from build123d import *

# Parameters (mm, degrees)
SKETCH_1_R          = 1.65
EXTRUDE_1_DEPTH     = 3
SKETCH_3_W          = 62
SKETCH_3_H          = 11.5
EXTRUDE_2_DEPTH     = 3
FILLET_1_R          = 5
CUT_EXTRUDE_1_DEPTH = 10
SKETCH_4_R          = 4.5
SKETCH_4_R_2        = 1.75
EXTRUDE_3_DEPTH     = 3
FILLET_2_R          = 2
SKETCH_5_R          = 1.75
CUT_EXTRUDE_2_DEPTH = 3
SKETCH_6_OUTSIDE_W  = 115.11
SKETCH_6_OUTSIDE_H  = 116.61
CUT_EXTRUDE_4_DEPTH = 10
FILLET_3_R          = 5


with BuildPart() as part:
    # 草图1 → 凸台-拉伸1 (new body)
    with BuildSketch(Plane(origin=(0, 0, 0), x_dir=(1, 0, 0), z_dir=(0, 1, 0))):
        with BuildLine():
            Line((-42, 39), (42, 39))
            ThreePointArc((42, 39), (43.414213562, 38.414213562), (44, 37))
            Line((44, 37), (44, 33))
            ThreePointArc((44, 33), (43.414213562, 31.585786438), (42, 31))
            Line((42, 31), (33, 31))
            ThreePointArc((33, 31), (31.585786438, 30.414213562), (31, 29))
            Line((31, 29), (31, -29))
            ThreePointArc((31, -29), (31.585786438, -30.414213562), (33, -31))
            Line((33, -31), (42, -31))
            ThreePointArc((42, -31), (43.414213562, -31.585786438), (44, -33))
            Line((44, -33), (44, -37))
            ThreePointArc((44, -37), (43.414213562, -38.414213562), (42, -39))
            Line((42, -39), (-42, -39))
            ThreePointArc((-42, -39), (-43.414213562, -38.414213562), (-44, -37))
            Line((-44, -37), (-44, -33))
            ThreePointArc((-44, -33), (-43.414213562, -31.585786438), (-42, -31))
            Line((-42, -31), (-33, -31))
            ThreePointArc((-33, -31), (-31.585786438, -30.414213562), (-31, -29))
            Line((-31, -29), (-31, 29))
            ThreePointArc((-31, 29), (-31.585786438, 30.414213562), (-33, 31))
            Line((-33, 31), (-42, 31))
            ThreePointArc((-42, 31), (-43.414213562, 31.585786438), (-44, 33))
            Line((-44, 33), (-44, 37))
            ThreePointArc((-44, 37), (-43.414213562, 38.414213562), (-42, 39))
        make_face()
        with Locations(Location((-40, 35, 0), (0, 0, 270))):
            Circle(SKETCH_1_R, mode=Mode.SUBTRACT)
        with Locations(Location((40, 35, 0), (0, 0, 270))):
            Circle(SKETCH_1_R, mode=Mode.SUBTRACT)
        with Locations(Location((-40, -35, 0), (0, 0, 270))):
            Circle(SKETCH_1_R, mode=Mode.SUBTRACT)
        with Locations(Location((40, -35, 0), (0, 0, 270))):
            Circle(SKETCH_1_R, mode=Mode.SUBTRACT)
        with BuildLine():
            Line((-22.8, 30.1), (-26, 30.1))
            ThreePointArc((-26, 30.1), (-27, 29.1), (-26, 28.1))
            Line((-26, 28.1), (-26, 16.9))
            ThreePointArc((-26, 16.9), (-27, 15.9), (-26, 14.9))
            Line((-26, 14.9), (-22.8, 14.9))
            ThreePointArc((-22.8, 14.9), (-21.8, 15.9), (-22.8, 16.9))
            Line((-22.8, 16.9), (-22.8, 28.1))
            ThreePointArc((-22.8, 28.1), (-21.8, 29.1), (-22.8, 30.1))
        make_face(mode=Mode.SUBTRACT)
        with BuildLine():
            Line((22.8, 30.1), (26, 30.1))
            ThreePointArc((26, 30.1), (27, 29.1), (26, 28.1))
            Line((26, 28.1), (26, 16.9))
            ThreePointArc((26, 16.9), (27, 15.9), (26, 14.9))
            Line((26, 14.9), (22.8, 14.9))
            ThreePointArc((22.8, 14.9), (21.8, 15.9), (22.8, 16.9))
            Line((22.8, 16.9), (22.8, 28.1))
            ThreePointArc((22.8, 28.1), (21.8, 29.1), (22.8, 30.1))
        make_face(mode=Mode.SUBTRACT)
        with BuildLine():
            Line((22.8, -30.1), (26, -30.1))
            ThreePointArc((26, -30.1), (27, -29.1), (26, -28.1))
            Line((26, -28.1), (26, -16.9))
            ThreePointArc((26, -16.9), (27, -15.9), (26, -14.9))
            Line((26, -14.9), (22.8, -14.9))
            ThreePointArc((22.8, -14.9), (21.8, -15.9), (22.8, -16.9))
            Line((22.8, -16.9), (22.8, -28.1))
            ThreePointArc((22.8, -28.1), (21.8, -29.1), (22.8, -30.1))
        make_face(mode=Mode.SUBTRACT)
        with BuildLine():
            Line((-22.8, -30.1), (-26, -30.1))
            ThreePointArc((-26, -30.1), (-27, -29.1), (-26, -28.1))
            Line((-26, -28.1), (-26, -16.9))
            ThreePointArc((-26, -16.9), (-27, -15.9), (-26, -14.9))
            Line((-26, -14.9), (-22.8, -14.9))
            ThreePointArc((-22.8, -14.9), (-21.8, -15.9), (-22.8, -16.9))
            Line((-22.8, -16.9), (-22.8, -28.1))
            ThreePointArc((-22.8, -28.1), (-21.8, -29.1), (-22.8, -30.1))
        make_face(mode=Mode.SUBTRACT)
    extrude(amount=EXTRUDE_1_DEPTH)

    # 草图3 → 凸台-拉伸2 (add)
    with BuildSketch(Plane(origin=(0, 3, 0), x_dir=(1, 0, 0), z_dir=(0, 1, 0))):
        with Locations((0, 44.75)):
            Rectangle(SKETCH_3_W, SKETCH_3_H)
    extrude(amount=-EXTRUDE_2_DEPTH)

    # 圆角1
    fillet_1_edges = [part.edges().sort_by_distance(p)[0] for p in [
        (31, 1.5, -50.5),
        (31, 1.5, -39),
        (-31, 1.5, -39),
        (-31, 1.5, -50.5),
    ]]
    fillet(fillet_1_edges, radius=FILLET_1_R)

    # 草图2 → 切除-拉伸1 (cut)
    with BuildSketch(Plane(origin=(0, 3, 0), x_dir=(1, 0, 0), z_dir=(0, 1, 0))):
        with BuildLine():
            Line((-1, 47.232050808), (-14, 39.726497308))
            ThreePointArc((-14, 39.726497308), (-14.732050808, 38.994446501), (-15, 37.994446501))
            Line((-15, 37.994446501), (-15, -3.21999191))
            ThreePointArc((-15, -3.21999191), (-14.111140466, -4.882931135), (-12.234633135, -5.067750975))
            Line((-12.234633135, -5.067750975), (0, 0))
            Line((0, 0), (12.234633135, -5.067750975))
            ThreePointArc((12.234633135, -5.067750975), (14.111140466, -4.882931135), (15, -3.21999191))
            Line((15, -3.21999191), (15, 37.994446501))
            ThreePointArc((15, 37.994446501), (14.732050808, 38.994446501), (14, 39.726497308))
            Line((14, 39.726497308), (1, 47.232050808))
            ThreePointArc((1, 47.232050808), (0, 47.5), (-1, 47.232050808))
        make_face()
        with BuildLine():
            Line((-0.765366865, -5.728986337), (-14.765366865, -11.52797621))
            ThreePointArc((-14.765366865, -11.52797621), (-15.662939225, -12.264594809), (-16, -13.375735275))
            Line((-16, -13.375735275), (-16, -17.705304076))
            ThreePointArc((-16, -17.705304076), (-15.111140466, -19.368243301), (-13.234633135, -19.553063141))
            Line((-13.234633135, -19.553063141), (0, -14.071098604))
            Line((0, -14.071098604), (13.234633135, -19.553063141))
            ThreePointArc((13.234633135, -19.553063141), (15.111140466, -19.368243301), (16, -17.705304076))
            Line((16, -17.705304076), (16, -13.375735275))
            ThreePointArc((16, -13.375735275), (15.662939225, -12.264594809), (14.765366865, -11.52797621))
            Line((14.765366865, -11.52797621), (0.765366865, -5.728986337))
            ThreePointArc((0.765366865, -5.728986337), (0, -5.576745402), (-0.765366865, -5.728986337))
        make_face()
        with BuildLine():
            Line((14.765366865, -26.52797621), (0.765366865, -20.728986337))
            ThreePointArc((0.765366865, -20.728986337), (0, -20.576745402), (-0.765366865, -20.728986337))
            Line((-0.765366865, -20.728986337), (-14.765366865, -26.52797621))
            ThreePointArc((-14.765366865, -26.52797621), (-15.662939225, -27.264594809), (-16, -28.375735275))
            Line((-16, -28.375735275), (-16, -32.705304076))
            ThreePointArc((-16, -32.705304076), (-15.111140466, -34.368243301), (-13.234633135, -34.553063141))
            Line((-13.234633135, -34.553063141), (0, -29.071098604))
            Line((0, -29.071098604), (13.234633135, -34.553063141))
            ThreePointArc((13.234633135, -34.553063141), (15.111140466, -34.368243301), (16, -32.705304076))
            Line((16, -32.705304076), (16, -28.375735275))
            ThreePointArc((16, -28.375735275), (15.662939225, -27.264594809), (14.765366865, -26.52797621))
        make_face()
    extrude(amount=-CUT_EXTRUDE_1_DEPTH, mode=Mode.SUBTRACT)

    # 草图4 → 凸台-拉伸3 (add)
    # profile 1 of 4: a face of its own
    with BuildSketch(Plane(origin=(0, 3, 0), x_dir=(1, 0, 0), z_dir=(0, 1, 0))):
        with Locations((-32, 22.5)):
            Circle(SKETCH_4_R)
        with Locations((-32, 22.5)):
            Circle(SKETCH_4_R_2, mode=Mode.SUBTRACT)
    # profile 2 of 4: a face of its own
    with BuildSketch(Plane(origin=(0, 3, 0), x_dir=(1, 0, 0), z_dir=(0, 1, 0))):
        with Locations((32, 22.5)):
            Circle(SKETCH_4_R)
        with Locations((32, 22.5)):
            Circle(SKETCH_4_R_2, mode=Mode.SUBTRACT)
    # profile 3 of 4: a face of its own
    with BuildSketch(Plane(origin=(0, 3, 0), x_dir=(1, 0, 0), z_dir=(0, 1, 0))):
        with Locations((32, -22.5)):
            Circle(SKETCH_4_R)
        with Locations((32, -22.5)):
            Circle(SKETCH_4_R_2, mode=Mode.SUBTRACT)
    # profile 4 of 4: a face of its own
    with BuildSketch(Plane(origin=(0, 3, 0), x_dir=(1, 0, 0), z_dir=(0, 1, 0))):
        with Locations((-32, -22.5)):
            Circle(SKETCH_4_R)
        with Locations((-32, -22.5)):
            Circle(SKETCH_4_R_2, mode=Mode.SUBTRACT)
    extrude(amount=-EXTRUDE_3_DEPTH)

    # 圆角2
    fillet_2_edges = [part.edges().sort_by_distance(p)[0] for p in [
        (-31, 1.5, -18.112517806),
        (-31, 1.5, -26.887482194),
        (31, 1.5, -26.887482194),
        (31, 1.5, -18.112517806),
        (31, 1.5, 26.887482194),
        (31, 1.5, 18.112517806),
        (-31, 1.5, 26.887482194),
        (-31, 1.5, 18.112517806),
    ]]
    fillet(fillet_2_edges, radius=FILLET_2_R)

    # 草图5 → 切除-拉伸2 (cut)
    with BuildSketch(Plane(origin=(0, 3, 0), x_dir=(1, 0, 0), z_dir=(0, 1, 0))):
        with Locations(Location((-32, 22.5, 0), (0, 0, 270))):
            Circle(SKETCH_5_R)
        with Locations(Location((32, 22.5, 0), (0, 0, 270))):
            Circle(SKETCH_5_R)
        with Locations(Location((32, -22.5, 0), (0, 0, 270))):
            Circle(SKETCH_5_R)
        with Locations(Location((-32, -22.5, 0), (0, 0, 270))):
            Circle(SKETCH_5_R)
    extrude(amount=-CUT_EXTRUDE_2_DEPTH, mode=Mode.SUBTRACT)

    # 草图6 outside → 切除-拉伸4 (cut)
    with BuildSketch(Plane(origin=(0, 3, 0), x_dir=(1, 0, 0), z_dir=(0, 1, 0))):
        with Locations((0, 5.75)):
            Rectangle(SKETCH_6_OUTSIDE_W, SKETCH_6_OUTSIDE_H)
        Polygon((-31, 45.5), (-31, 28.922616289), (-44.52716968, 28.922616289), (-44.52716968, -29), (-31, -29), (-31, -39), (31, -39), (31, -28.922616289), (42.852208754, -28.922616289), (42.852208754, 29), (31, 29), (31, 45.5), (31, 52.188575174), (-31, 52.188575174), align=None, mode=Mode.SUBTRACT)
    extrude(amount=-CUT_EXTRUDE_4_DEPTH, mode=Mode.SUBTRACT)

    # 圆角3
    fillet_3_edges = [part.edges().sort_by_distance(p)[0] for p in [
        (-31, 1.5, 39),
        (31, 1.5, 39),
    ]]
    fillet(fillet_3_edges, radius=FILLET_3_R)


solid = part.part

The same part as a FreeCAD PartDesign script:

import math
import FreeCAD as App
import Part
import Sketcher

V = App.Vector
Q = App.Units.Quantity


def edges_at(feature, points):
    """Names of the edges that pass closest to the given points."""
    edges = feature.Shape.Edges
    near = lambda p: min(range(len(edges)), key=lambda i: edges[i].distToShape(Part.Vertex(*p))[0])
    return sorted({f"Edge{near(p) + 1}" for p in points})

doc = App.newDocument("Part")
body = doc.addObject("PartDesign::Body", "Body")

# Sketch on XZ plane
sketch1 = body.newObject("Sketcher::SketchObject", "Sketch")
sketch1.AttachmentSupport = (doc.getObject("XZ_Plane"), [""])
sketch1.MapMode = "FlatFace"
sketch1.addGeometry([
    Part.LineSegment(V(42, -39, 0), V(-42, -39, 0)),  # 0
    Part.ArcOfCircle(Part.Circle(V(-42, -37, 0), V(0, 0, 1), 2), math.radians(-180), math.radians(-90)),  # 1
    Part.LineSegment(V(-44, -37, 0), V(-44, -33, 0)),  # 2
    Part.ArcOfCircle(Part.Circle(V(-42, -33, 0), V(0, 0, 1), 2), math.radians(90), math.radians(180)),  # 3
    Part.LineSegment(V(-42, -31, 0), V(-33, -31, 0)),  # 4
    Part.ArcOfCircle(Part.Circle(V(-33, -29, 0), V(0, 0, 1), 2), math.radians(-90), math.radians(0)),  # 5
    Part.LineSegment(V(-31, -29, 0), V(-31, 29, 0)),  # 6
    Part.ArcOfCircle(Part.Circle(V(-33, 29, 0), V(0, 0, 1), 2), math.radians(0), math.radians(90)),  # 7
    Part.LineSegment(V(-33, 31, 0), V(-42, 31, 0)),  # 8
    Part.ArcOfCircle(Part.Circle(V(-42, 33, 0), V(0, 0, 1), 2), math.radians(-180), math.radians(-90)),  # 9
    Part.LineSegment(V(-44, 33, 0), V(-44, 37, 0)),  # 10
    Part.ArcOfCircle(Part.Circle(V(-42, 37, 0), V(0, 0, 1), 2), math.radians(90), math.radians(180)),  # 11
    Part.LineSegment(V(-42, 39, 0), V(42, 39, 0)),  # 12
    Part.ArcOfCircle(Part.Circle(V(42, 37, 0), V(0, 0, 1), 2), math.radians(0), math.radians(90)),  # 13
    Part.LineSegment(V(44, 37, 0), V(44, 33, 0)),  # 14
    Part.ArcOfCircle(Part.Circle(V(42, 33, 0), V(0, 0, 1), 2), math.radians(-90), math.radians(0)),  # 15
    Part.LineSegment(V(42, 31, 0), V(33, 31, 0)),  # 16
    Part.ArcOfCircle(Part.Circle(V(33, 29, 0), V(0, 0, 1), 2), math.radians(90), math.radians(180)),  # 17
    Part.LineSegment(V(31, 29, 0), V(31, -29, 0)),  # 18
    Part.ArcOfCircle(Part.Circle(V(33, -29, 0), V(0, 0, 1), 2), math.radians(-180), math.radians(-90)),  # 19
    Part.LineSegment(V(33, -31, 0), V(42, -31, 0)),  # 20
    Part.ArcOfCircle(Part.Circle(V(42, -33, 0), V(0, 0, 1), 2), math.radians(0), math.radians(90)),  # 21
    Part.LineSegment(V(44, -33, 0), V(44, -37, 0)),  # 22
    Part.ArcOfCircle(Part.Circle(V(42, -37, 0), V(0, 0, 1), 2), math.radians(-90), math.radians(0)),  # 23
    Part.Circle(V(40, 35, 0), V(0, 0, 1), 1.65),  # 24
    Part.ArcOfCircle(Part.Circle(V(22.8, 29.1, 0), V(0, 0, 1), 1), math.radians(90), math.radians(270)),  # 25
    Part.LineSegment(V(22.8, 28.1, 0), V(22.8, 16.9, 0)),  # 26
    Part.ArcOfCircle(Part.Circle(V(22.8, 15.9, 0), V(0, 0, 1), 1), math.radians(90), math.radians(270)),  # 27
    Part.LineSegment(V(22.8, 14.9, 0), V(26, 14.9, 0)),  # 28
    Part.ArcOfCircle(Part.Circle(V(26, 15.9, 0), V(0, 0, 1), 1), math.radians(-90), math.radians(90)),  # 29
    Part.LineSegment(V(26, 16.9, 0), V(26, 28.1, 0)),  # 30
    Part.ArcOfCircle(Part.Circle(V(26, 29.1, 0), V(0, 0, 1), 1), math.radians(-90), math.radians(90)),  # 31
    Part.LineSegment(V(26, 30.1, 0), V(22.8, 30.1, 0)),  # 32
    Part.Circle(V(-40, 35, 0), V(0, 0, 1), 1.65),  # 33
    Part.LineSegment(V(-22.8, 30.1, 0), V(-26, 30.1, 0)),  # 34
    Part.ArcOfCircle(Part.Circle(V(-26, 29.1, 0), V(0, 0, 1), 1), math.radians(90), math.radians(270)),  # 35
    Part.LineSegment(V(-26, 28.1, 0), V(-26, 16.9, 0)),  # 36
    Part.ArcOfCircle(Part.Circle(V(-26, 15.9, 0), V(0, 0, 1), 1), math.radians(90), math.radians(270)),  # 37
    Part.LineSegment(V(-26, 14.9, 0), V(-22.8, 14.9, 0)),  # 38
    Part.ArcOfCircle(Part.Circle(V(-22.8, 15.9, 0), V(0, 0, 1), 1), math.radians(-90), math.radians(90)),  # 39
    Part.LineSegment(V(-22.8, 16.9, 0), V(-22.8, 28.1, 0)),  # 40
    Part.ArcOfCircle(Part.Circle(V(-22.8, 29.1, 0), V(0, 0, 1), 1), math.radians(-90), math.radians(90)),  # 41
    Part.LineSegment(V(22.8, -30.1, 0), V(26, -30.1, 0)),  # 42
    Part.ArcOfCircle(Part.Circle(V(26, -29.1, 0), V(0, 0, 1), 1), math.radians(-90), math.radians(90)),  # 43
    Part.LineSegment(V(26, -28.1, 0), V(26, -16.9, 0)),  # 44
    Part.ArcOfCircle(Part.Circle(V(26, -15.9, 0), V(0, 0, 1), 1), math.radians(-90), math.radians(90)),  # 45
    Part.LineSegment(V(26, -14.9, 0), V(22.8, -14.9, 0)),  # 46
    Part.ArcOfCircle(Part.Circle(V(22.8, -15.9, 0), V(0, 0, 1), 1), math.radians(90), math.radians(270)),  # 47
    Part.LineSegment(V(22.8, -16.9, 0), V(22.8, -28.1, 0)),  # 48
    Part.ArcOfCircle(Part.Circle(V(22.8, -29.1, 0), V(0, 0, 1), 1), math.radians(90), math.radians(270)),  # 49
    Part.Circle(V(40, -35, 0), V(0, 0, 1), 1.65),  # 50
    Part.ArcOfCircle(Part.Circle(V(-22.8, -29.1, 0), V(0, 0, 1), 1), math.radians(-90), math.radians(90)),  # 51
    Part.LineSegment(V(-22.8, -28.1, 0), V(-22.8, -16.9, 0)),  # 52
    Part.ArcOfCircle(Part.Circle(V(-22.8, -15.9, 0), V(0, 0, 1), 1), math.radians(-90), math.radians(90)),  # 53
    Part.LineSegment(V(-22.8, -14.9, 0), V(-26, -14.9, 0)),  # 54
    Part.ArcOfCircle(Part.Circle(V(-26, -15.9, 0), V(0, 0, 1), 1), math.radians(90), math.radians(270)),  # 55
    Part.LineSegment(V(-26, -16.9, 0), V(-26, -28.1, 0)),  # 56
    Part.ArcOfCircle(Part.Circle(V(-26, -29.1, 0), V(0, 0, 1), 1), math.radians(90), math.radians(270)),  # 57
    Part.LineSegment(V(-26, -30.1, 0), V(-22.8, -30.1, 0)),  # 58
    Part.Circle(V(-40, -35, 0), V(0, 0, 1), 1.65),  # 59
], False)
sketch1.addConstraint([
    Sketcher.Constraint("Tangent", 0, 2, 1, 2),
    Sketcher.Constraint("Tangent", 1, 1, 2, 1),
    Sketcher.Constraint("Tangent", 2, 2, 3, 2),
    Sketcher.Constraint("Tangent", 3, 1, 4, 1),
    Sketcher.Constraint("Tangent", 4, 2, 5, 1),
    Sketcher.Constraint("Tangent", 5, 2, 6, 1),
    Sketcher.Constraint("Tangent", 6, 2, 7, 1),
    Sketcher.Constraint("Tangent", 7, 2, 8, 1),
    Sketcher.Constraint("Tangent", 8, 2, 9, 2),
    Sketcher.Constraint("Tangent", 9, 1, 10, 1),
    Sketcher.Constraint("Tangent", 10, 2, 11, 2),
    Sketcher.Constraint("Tangent", 11, 1, 12, 1),
    Sketcher.Constraint("Tangent", 12, 2, 13, 2),
    Sketcher.Constraint("Tangent", 13, 1, 14, 1),
    Sketcher.Constraint("Tangent", 14, 2, 15, 2),
    Sketcher.Constraint("Tangent", 15, 1, 16, 1),
    Sketcher.Constraint("Tangent", 16, 2, 17, 1),
    Sketcher.Constraint("Tangent", 17, 2, 18, 1),
    Sketcher.Constraint("Tangent", 18, 2, 19, 1),
    Sketcher.Constraint("Tangent", 19, 2, 20, 1),
    Sketcher.Constraint("Tangent", 20, 2, 21, 2),
    Sketcher.Constraint("Tangent", 21, 1, 22, 1),
    Sketcher.Constraint("Tangent", 22, 2, 23, 2),
    Sketcher.Constraint("Tangent", 23, 1, 0, 1),
    Sketcher.Constraint("Coincident", 25, 2, 26, 1),
    Sketcher.Constraint("Coincident", 26, 2, 27, 1),
    Sketcher.Constraint("Tangent", 27, 2, 28, 1),
    Sketcher.Constraint("Tangent", 28, 2, 29, 1),
    Sketcher.Constraint("Coincident", 29, 2, 30, 1),
    Sketcher.Constraint("Coincident", 30, 2, 31, 1),
    Sketcher.Constraint("Tangent", 31, 2, 32, 1),
    Sketcher.Constraint("Tangent", 32, 2, 25, 1),
    Sketcher.Constraint("Tangent", 34, 2, 35, 1),
    Sketcher.Constraint("Coincident", 35, 2, 36, 1),
    Sketcher.Constraint("Coincident", 36, 2, 37, 1),
    Sketcher.Constraint("Tangent", 37, 2, 38, 1),
    Sketcher.Constraint("Tangent", 38, 2, 39, 1),
    Sketcher.Constraint("Coincident", 39, 2, 40, 1),
    Sketcher.Constraint("Coincident", 40, 2, 41, 1),
    Sketcher.Constraint("Tangent", 41, 2, 34, 1),
    Sketcher.Constraint("Tangent", 42, 2, 43, 1),
    Sketcher.Constraint("Coincident", 43, 2, 44, 1),
    Sketcher.Constraint("Coincident", 44, 2, 45, 1),
    Sketcher.Constraint("Tangent", 45, 2, 46, 1),
    Sketcher.Constraint("Tangent", 46, 2, 47, 1),
    Sketcher.Constraint("Coincident", 47, 2, 48, 1),
    Sketcher.Constraint("Coincident", 48, 2, 49, 1),
    Sketcher.Constraint("Tangent", 49, 2, 42, 1),
    Sketcher.Constraint("Coincident", 51, 2, 52, 1),
    Sketcher.Constraint("Coincident", 52, 2, 53, 1),
    Sketcher.Constraint("Tangent", 53, 2, 54, 1),
    Sketcher.Constraint("Tangent", 54, 2, 55, 1),
    Sketcher.Constraint("Coincident", 55, 2, 56, 1),
    Sketcher.Constraint("Coincident", 56, 2, 57, 1),
    Sketcher.Constraint("Tangent", 57, 2, 58, 1),
    Sketcher.Constraint("Tangent", 58, 2, 51, 1),
    Sketcher.Constraint("Horizontal", 0),
    Sketcher.Constraint("Vertical", 2),
    Sketcher.Constraint("Horizontal", 4),
    Sketcher.Constraint("Vertical", 6),
    Sketcher.Constraint("Horizontal", 8),
    Sketcher.Constraint("Vertical", 10),
    Sketcher.Constraint("Horizontal", 12),
    Sketcher.Constraint("Vertical", 14),
    Sketcher.Constraint("Horizontal", 16),
    Sketcher.Constraint("Vertical", 18),
    Sketcher.Constraint("Horizontal", 20),
    Sketcher.Constraint("Vertical", 22),
    Sketcher.Constraint("Vertical", 26),
    Sketcher.Constraint("Horizontal", 28),
    Sketcher.Constraint("Vertical", 30),
    Sketcher.Constraint("Horizontal", 32),
    Sketcher.Constraint("Horizontal", 34),
    Sketcher.Constraint("Vertical", 36),
    Sketcher.Constraint("Horizontal", 38),
    Sketcher.Constraint("Vertical", 40),
    Sketcher.Constraint("Horizontal", 42),
    Sketcher.Constraint("Vertical", 44),
    Sketcher.Constraint("Horizontal", 46),
    Sketcher.Constraint("Vertical", 48),
    Sketcher.Constraint("Vertical", 52),
    Sketcher.Constraint("Horizontal", 54),
    Sketcher.Constraint("Vertical", 56),
    Sketcher.Constraint("Horizontal", 58),
    Sketcher.Constraint("Equal", 1, 3),
    Sketcher.Constraint("Equal", 3, 5),
    Sketcher.Constraint("Equal", 5, 7),
    Sketcher.Constraint("Equal", 7, 9),
    Sketcher.Constraint("Equal", 9, 11),
    Sketcher.Constraint("Equal", 11, 13),
    Sketcher.Constraint("Equal", 13, 15),
    Sketcher.Constraint("Equal", 15, 17),
    Sketcher.Constraint("Equal", 17, 19),
    Sketcher.Constraint("Equal", 19, 21),
    Sketcher.Constraint("Equal", 21, 23),
    Sketcher.Constraint("Equal", 25, 27),
    Sketcher.Constraint("Equal", 27, 29),
    Sketcher.Constraint("Equal", 29, 31),
    Sketcher.Constraint("Equal", 24, 33),
    Sketcher.Constraint("Equal", 31, 35),
    Sketcher.Constraint("Equal", 35, 37),
    Sketcher.Constraint("Equal", 37, 39),
    Sketcher.Constraint("Equal", 39, 41),
    Sketcher.Constraint("Equal", 41, 43),
    Sketcher.Constraint("Equal", 43, 45),
    Sketcher.Constraint("Equal", 45, 47),
    Sketcher.Constraint("Equal", 47, 49),
    Sketcher.Constraint("Equal", 33, 50),
    Sketcher.Constraint("Equal", 49, 51),
    Sketcher.Constraint("Equal", 51, 53),
    Sketcher.Constraint("Equal", 53, 55),
    Sketcher.Constraint("Equal", 55, 57),
    Sketcher.Constraint("Equal", 50, 59),
    Sketcher.Constraint("Symmetric", 1, 3, 13, 3, -1, 1),
    Sketcher.Constraint("Symmetric", 5, 3, 17, 3, -1, 1),
    Sketcher.Constraint("Symmetric", 9, 3, 21, 3, -1, 1),
    Sketcher.Constraint("Symmetric", 35, 3, 43, 3, -1, 1),
    Sketcher.Constraint("Symmetric", 37, 3, 45, 3, -1, 1),
    Sketcher.Constraint("Symmetric", 33, 3, 50, 3, -1, 1),
    Sketcher.Constraint("Symmetric", 25, 3, 51, 3, -1, 1),
    Sketcher.Constraint("Symmetric", 27, 3, 53, 3, -1, 1),
    Sketcher.Constraint("Symmetric", 24, 3, 59, 3, -1, 1),
    Sketcher.Constraint("Symmetric", 9, 3, 15, 3, -2),
    Sketcher.Constraint("Symmetric", 24, 3, 33, 3, -2),
    Sketcher.Constraint("Symmetric", 31, 3, 35, 3, -2),
    Sketcher.Constraint("Symmetric", 29, 3, 37, 3, -2),
    Sketcher.Constraint("Vertical", 25, 3, 27, 3),
    Sketcher.Constraint("Vertical", 29, 3, 31, 3),
    Sketcher.Constraint("Vertical", 39, 3, 41, 3),
    Sketcher.Constraint("Vertical", 27, 3, 47, 3),
    Sketcher.Constraint("Vertical", 47, 3, 49, 3),
    Sketcher.Constraint("Vertical", 41, 3, 51, 3),
    Sketcher.Constraint("Vertical", 37, 3, 55, 3),
    Sketcher.Constraint("Vertical", 55, 3, 57, 3),
    Sketcher.Constraint("Vertical", 49, 3, 25, 2),
    Sketcher.Constraint("Vertical", 28, 2, 29, 2),
    Sketcher.Constraint("Vertical", 34, 2, 35, 2),
    Sketcher.Constraint("Vertical", 38, 2, 39, 2),
    Sketcher.Constraint("Vertical", 42, 2, 43, 2),
    Sketcher.Constraint("Vertical", 46, 2, 47, 2),
    Sketcher.Constraint("Vertical", 41, 2, 51, 2),
    Sketcher.Constraint("Vertical", 54, 2, 55, 2),
    Sketcher.Constraint("Radius", 1, 2.0),
    Sketcher.Constraint("Radius", 25, 1.0),
    Sketcher.Constraint("Diameter", 24, 3.3),
    Sketcher.Constraint("DistanceX", 0, 2, 0, 1, 84.0),
    Sketcher.Constraint("DistanceX", 4, 1, 4, 2, 9.0),
    Sketcher.Constraint("DistanceY", 2, 1, 2, 2, 4.0),
    Sketcher.Constraint("DistanceY", 6, 1, 6, 2, 58.0),
    Sketcher.Constraint("DistanceX", 28, 1, 28, 2, 3.2),
    Sketcher.Constraint("DistanceY", 26, 2, 26, 1, 11.2),
    Sketcher.Constraint("DistanceX", -1, 1, 24, 3, 40.0),
    Sketcher.Constraint("DistanceY", -1, 1, 24, 3, 35.0),
    Sketcher.Constraint("DistanceX", -1, 1, 29, 3, 26.0),
    Sketcher.Constraint("DistanceY", -1, 1, 25, 3, 29.1),
])
pad1 = body.newObject("PartDesign::Pad", "Pad")
pad1.Profile = sketch1
pad1.Length = 3
pad1.Reversed = True

# Sketch on XZ plane
sketch2 = body.newObject("Sketcher::SketchObject", "Sketch001")
sketch2.AttachmentSupport = (doc.getObject("XZ_Plane"), [""])
sketch2.MapMode = "FlatFace"
sketch2.AttachmentOffset = App.Placement(V(0, 0, -3), App.Rotation())
sketch2.addGeometry([
    Part.LineSegment(V(-31, -50.5, 0), V(-31, -39, 0)),
    Part.LineSegment(V(-31, -39, 0), V(31, -39, 0)),
    Part.LineSegment(V(31, -39, 0), V(31, -50.5, 0)),
    Part.LineSegment(V(31, -50.5, 0), V(-31, -50.5, 0)),
], False)
sketch2.addConstraint([
    Sketcher.Constraint("Coincident", 0, 2, 1, 1),
    Sketcher.Constraint("Coincident", 1, 2, 2, 1),
    Sketcher.Constraint("Coincident", 2, 2, 3, 1),
    Sketcher.Constraint("Coincident", 3, 2, 0, 1),
    Sketcher.Constraint("Vertical", 0),
    Sketcher.Constraint("Horizontal", 1),
    Sketcher.Constraint("Vertical", 2),
    Sketcher.Constraint("Horizontal", 3),
    Sketcher.Constraint("DistanceX", 1, 1, 1, 2, 62.0),
    Sketcher.Constraint("DistanceY", 0, 1, 0, 2, 11.5),
    Sketcher.Constraint("DistanceX", 0, 2, -1, 1, 31.0),
    Sketcher.Constraint("DistanceY", 0, 2, -1, 1, 39.0),
])
pad2 = body.newObject("PartDesign::Pad", "Pad001")
pad2.Profile = sketch2
pad2.Length = 3
doc.recompute()

fillet = body.newObject("PartDesign::Fillet", "Fillet")
fillet.Base = (pad2, edges_at(pad2, [
    (31, 1.5, -50.5),
    (31, 1.5, -39),
    (-31, 1.5, -39),
    (-31, 1.5, -50.5),
]))
fillet.Radius = 5

# Sketch on XZ plane
sketch3 = body.newObject("Sketcher::SketchObject", "Sketch002")
sketch3.AttachmentSupport = (doc.getObject("XZ_Plane"), [""])
sketch3.MapMode = "FlatFace"
sketch3.AttachmentOffset = App.Placement(V(0, 0, -3), App.Rotation())
sketch3.addGeometry([
    Part.LineSegment(V(-1, -47.232051, 0), V(-14, -39.726497, 0)),  # 0
    Part.ArcOfCircle(Part.Circle(V(-13, -37.994447, 0), V(0, 0, 1), 2), math.radians(180), math.radians(240)),  # 1
    Part.LineSegment(V(-15, -37.994447, 0), V(-15, 3.219992, 0)),  # 2
    Part.ArcOfCircle(Part.Circle(V(-13, 3.219992, 0), V(0, 0, 1), 2), math.radians(67.5), math.radians(180)),  # 3
    Part.LineSegment(V(-12.234633, 5.067751, 0), V(0, 0, 0)),  # 4
    Part.LineSegment(V(0, 0, 0), V(12.234633, 5.067751, 0)),  # 5
    Part.ArcOfCircle(Part.Circle(V(13, 3.219992, 0), V(0, 0, 1), 2), math.radians(0), math.radians(112.5)),  # 6
    Part.LineSegment(V(15, 3.219992, 0), V(15, -37.994447, 0)),  # 7
    Part.ArcOfCircle(Part.Circle(V(13, -37.994447, 0), V(0, 0, 1), 2), math.radians(-60), math.radians(0)),  # 8
    Part.LineSegment(V(14, -39.726497, 0), V(1, -47.232051, 0)),  # 9
    Part.ArcOfCircle(Part.Circle(V(0, -45.5, 0), V(0, 0, 1), 2), math.radians(-120), math.radians(-60)),  # 10
    Part.LineSegment(V(-0.765367, 5.728986, 0), V(-14.765367, 11.527976, 0)),  # 11
    Part.ArcOfCircle(Part.Circle(V(-14, 13.375735, 0), V(0, 0, 1), 2), math.radians(180), math.radians(247.5)),  # 12
    Part.LineSegment(V(-16, 13.375735, 0), V(-16, 17.705304, 0)),  # 13
    Part.ArcOfCircle(Part.Circle(V(-14, 17.705304, 0), V(0, 0, 1), 2), math.radians(67.5), math.radians(180)),  # 14
    Part.LineSegment(V(-13.234633, 19.553063, 0), V(0, 14.071099, 0)),  # 15
    Part.LineSegment(V(0, 14.071099, 0), V(13.234633, 19.553063, 0)),  # 16
    Part.ArcOfCircle(Part.Circle(V(14, 17.705304, 0), V(0, 0, 1), 2), math.radians(0), math.radians(112.5)),  # 17
    Part.LineSegment(V(16, 17.705304, 0), V(16, 13.375735, 0)),  # 18
    Part.ArcOfCircle(Part.Circle(V(14, 13.375735, 0), V(0, 0, 1), 2), math.radians(-67.5), math.radians(0)),  # 19
    Part.LineSegment(V(14.765367, 11.527976, 0), V(0.765367, 5.728986, 0)),  # 20
    Part.ArcOfCircle(Part.Circle(V(0, 7.576745, 0), V(0, 0, 1), 2), math.radians(-112.5), math.radians(-67.5)),  # 21
    Part.LineSegment(V(14.765367, 26.527976, 0), V(0.765367, 20.728986, 0)),  # 22
    Part.ArcOfCircle(Part.Circle(V(0, 22.576745, 0), V(0, 0, 1), 2), math.radians(-112.5), math.radians(-67.5)),  # 23
    Part.LineSegment(V(-0.765367, 20.728986, 0), V(-14.765367, 26.527976, 0)),  # 24
    Part.ArcOfCircle(Part.Circle(V(-14, 28.375735, 0), V(0, 0, 1), 2), math.radians(180), math.radians(247.5)),  # 25
    Part.LineSegment(V(-16, 28.375735, 0), V(-16, 32.705304, 0)),  # 26
    Part.ArcOfCircle(Part.Circle(V(-14, 32.705304, 0), V(0, 0, 1), 2), math.radians(67.5), math.radians(180)),  # 27
    Part.LineSegment(V(-13.234633, 34.553063, 0), V(0, 29.071099, 0)),  # 28
    Part.LineSegment(V(0, 29.071099, 0), V(13.234633, 34.553063, 0)),  # 29
    Part.ArcOfCircle(Part.Circle(V(14, 32.705304, 0), V(0, 0, 1), 2), math.radians(0), math.radians(112.5)),  # 30
    Part.LineSegment(V(16, 32.705304, 0), V(16, 28.375735, 0)),  # 31
    Part.ArcOfCircle(Part.Circle(V(14, 28.375735, 0), V(0, 0, 1), 2), math.radians(-67.5), math.radians(0)),  # 32
], False)
sketch3.addConstraint([
    Sketcher.Constraint("Tangent", 0, 2, 1, 2),
    Sketcher.Constraint("Tangent", 1, 1, 2, 1),
    Sketcher.Constraint("Tangent", 2, 2, 3, 2),
    Sketcher.Constraint("Tangent", 3, 1, 4, 1),
    Sketcher.Constraint("Coincident", 4, 2, 5, 1),
    Sketcher.Constraint("Tangent", 5, 2, 6, 2),
    Sketcher.Constraint("Tangent", 6, 1, 7, 1),
    Sketcher.Constraint("Tangent", 7, 2, 8, 2),
    Sketcher.Constraint("Tangent", 8, 1, 9, 1),
    Sketcher.Constraint("Tangent", 9, 2, 10, 2),
    Sketcher.Constraint("Tangent", 10, 1, 0, 1),
    Sketcher.Constraint("Tangent", 11, 2, 12, 2),
    Sketcher.Constraint("Tangent", 12, 1, 13, 1),
    Sketcher.Constraint("Tangent", 13, 2, 14, 2),
    Sketcher.Constraint("Tangent", 14, 1, 15, 1),
    Sketcher.Constraint("Coincident", 15, 2, 16, 1),
    Sketcher.Constraint("Tangent", 16, 2, 17, 2),
    Sketcher.Constraint("Tangent", 17, 1, 18, 1),
    Sketcher.Constraint("Tangent", 18, 2, 19, 2),
    Sketcher.Constraint("Tangent", 19, 1, 20, 1),
    Sketcher.Constraint("Tangent", 20, 2, 21, 2),
    Sketcher.Constraint("Tangent", 21, 1, 11, 1),
    Sketcher.Constraint("Tangent", 22, 2, 23, 2),
    Sketcher.Constraint("Tangent", 23, 1, 24, 1),
    Sketcher.Constraint("Tangent", 24, 2, 25, 2),
    Sketcher.Constraint("Tangent", 25, 1, 26, 1),
    Sketcher.Constraint("Tangent", 26, 2, 27, 2),
    Sketcher.Constraint("Tangent", 27, 1, 28, 1),
    Sketcher.Constraint("Coincident", 28, 2, 29, 1),
    Sketcher.Constraint("Tangent", 29, 2, 30, 2),
    Sketcher.Constraint("Tangent", 30, 1, 31, 1),
    Sketcher.Constraint("Tangent", 31, 2, 32, 2),
    Sketcher.Constraint("Tangent", 32, 1, 22, 1),
    Sketcher.Constraint("Vertical", 2),
    Sketcher.Constraint("Vertical", 7),
    Sketcher.Constraint("Vertical", 13),
    Sketcher.Constraint("Vertical", 18),
    Sketcher.Constraint("Vertical", 26),
    Sketcher.Constraint("Vertical", 31),
    Sketcher.Constraint("Coincident", 4, 2, -1, 1),
    Sketcher.Constraint("Equal", 1, 3),
    Sketcher.Constraint("Equal", 3, 6),
    Sketcher.Constraint("Equal", 6, 8),
    Sketcher.Constraint("Equal", 8, 10),
    Sketcher.Constraint("Equal", 10, 12),
    Sketcher.Constraint("Equal", 12, 14),
    Sketcher.Constraint("Equal", 14, 17),
    Sketcher.Constraint("Equal", 17, 19),
    Sketcher.Constraint("Equal", 19, 21),
    Sketcher.Constraint("Equal", 21, 23),
    Sketcher.Constraint("Equal", 23, 25),
    Sketcher.Constraint("Equal", 25, 27),
    Sketcher.Constraint("Equal", 27, 30),
    Sketcher.Constraint("Equal", 30, 32),
    Sketcher.Constraint("Symmetric", 3, 3, 6, 3, -2),
    Sketcher.Constraint("Symmetric", 14, 3, 17, 3, -2),
    Sketcher.Constraint("Symmetric", 27, 3, 30, 3, -2),
    Sketcher.Constraint("Symmetric", 0, 2, 8, 1, -2),
    Sketcher.Constraint("Symmetric", 11, 2, 19, 1, -2),
    Sketcher.Constraint("Symmetric", 22, 2, 23, 1, -2),
    Sketcher.Constraint("PointOnObject", 15, 2, -2),
    Sketcher.Constraint("PointOnObject", 28, 2, -2),
    Sketcher.Constraint("Parallel", 4, 11),
    Sketcher.Constraint("Parallel", 11, 15),
    Sketcher.Constraint("Parallel", 20, 22),
    Sketcher.Constraint("Parallel", 24, 28),
    Sketcher.Constraint("Vertical", 14, 3, 25, 3),
    Sketcher.Constraint("Vertical", 27, 3, 0, 2),
    Sketcher.Constraint("Equal", 18, 26),
    Sketcher.Constraint("Radius", 1, 2.0),
    Sketcher.Constraint("Angle", 0, Q("150 deg")),
    Sketcher.Constraint("DistanceX", 1, 3, -1, 1, 13.0),
    Sketcher.Constraint("Angle", 4, Q("-22.5 deg")),
    Sketcher.Constraint("DistanceY", 21, 3, 23, 3, 15.0),
    Sketcher.Constraint("DistanceY", 10, 3, -1, 1, 45.5),
    Sketcher.Constraint("DistanceY", 13, 1, 13, 2, 4.329569),
    Sketcher.Constraint("DistanceY", -1, 1, 15, 2, 14.071099),
])
pocket1 = body.newObject("PartDesign::Pocket", "Pocket")
pocket1.Profile = sketch3
pocket1.Length = 10
pocket1.Reversed = True

# Sketch on XZ plane
sketch4 = body.newObject("Sketcher::SketchObject", "Sketch003")
sketch4.AttachmentSupport = (doc.getObject("XZ_Plane"), [""])
sketch4.MapMode = "FlatFace"
sketch4.AttachmentOffset = App.Placement(V(0, 0, -3), App.Rotation())
sketch4.addGeometry([
    Part.Circle(V(-32, -22.5, 0), V(0, 0, 1), 4.5),  # 0
    Part.Circle(V(-32, -22.5, 0), V(0, 0, 1), 1.75),  # 1
    Part.Circle(V(32, -22.5, 0), V(0, 0, 1), 4.5),  # 2
    Part.Circle(V(32, -22.5, 0), V(0, 0, 1), 1.75),  # 3
    Part.Circle(V(32, 22.5, 0), V(0, 0, 1), 4.5),  # 4
    Part.Circle(V(32, 22.5, 0), V(0, 0, 1), 1.75),  # 5
    Part.Circle(V(-32, 22.5, 0), V(0, 0, 1), 4.5),  # 6
    Part.Circle(V(-32, 22.5, 0), V(0, 0, 1), 1.75),  # 7
], False)
sketch4.addConstraint([
    Sketcher.Constraint("Coincident", 1, 3, 0, 3),
    Sketcher.Constraint("Coincident", 3, 3, 2, 3),
    Sketcher.Constraint("Coincident", 5, 3, 4, 3),
    Sketcher.Constraint("Coincident", 7, 3, 6, 3),
    Sketcher.Constraint("Equal", 0, 2),
    Sketcher.Constraint("Equal", 1, 3),
    Sketcher.Constraint("Equal", 2, 4),
    Sketcher.Constraint("Equal", 3, 5),
    Sketcher.Constraint("Equal", 4, 6),
    Sketcher.Constraint("Equal", 5, 7),
    Sketcher.Constraint("Symmetric", 0, 3, 4, 3, -1, 1),
    Sketcher.Constraint("Symmetric", 2, 3, 6, 3, -1, 1),
    Sketcher.Constraint("Symmetric", 0, 3, 2, 3, -2),
    Sketcher.Constraint("Diameter", 0, 9.0),
    Sketcher.Constraint("Diameter", 1, 3.5),
    Sketcher.Constraint("DistanceX", 0, 3, -1, 1, 32.0),
    Sketcher.Constraint("DistanceY", 2, 3, 4, 3, 45.0),
])
pad3 = body.newObject("PartDesign::Pad", "Pad002")
pad3.Profile = sketch4
pad3.Length = 3
doc.recompute()

fillet2 = body.newObject("PartDesign::Fillet", "Fillet001")
fillet2.Base = (pad3, edges_at(pad3, [
    (-31, 1.5, -18.113),
    (-31, 1.5, -26.887),
    (31, 1.5, -26.887),
    (31, 1.5, -18.113),
    (31, 1.5, 26.887),
    (31, 1.5, 18.113),
    (-31, 1.5, 26.887),
    (-31, 1.5, 18.113),
]))
fillet2.Radius = 2

# Sketch on XZ plane
sketch5 = body.newObject("Sketcher::SketchObject", "Sketch004")
sketch5.AttachmentSupport = (doc.getObject("XZ_Plane"), [""])
sketch5.MapMode = "FlatFace"
sketch5.AttachmentOffset = App.Placement(V(0, 0, -3), App.Rotation())
sketch5.addGeometry([
    Part.Circle(V(-32, -22.5, 0), V(0, 0, 1), 1.75),
    Part.Circle(V(32, -22.5, 0), V(0, 0, 1), 1.75),
    Part.Circle(V(32, 22.5, 0), V(0, 0, 1), 1.75),
    Part.Circle(V(-32, 22.5, 0), V(0, 0, 1), 1.75),
], False)
sketch5.addConstraint([
    Sketcher.Constraint("Equal", 0, 1),
    Sketcher.Constraint("Equal", 1, 2),
    Sketcher.Constraint("Equal", 2, 3),
    Sketcher.Constraint("Symmetric", 0, 3, 2, 3, -1, 1),
    Sketcher.Constraint("Symmetric", 1, 3, 3, 3, -1, 1),
    Sketcher.Constraint("Symmetric", 0, 3, 1, 3, -2),
    Sketcher.Constraint("Diameter", 0, 3.5),
    Sketcher.Constraint("DistanceX", 0, 3, -1, 1, 32.0),
    Sketcher.Constraint("DistanceY", 1, 3, 2, 3, 45.0),
])
pocket2 = body.newObject("PartDesign::Pocket", "Pocket001")
pocket2.Profile = sketch5
pocket2.Length = 3
pocket2.Reversed = True

# Sketch on XZ plane
sketch6 = body.newObject("Sketcher::SketchObject", "Sketch005")
sketch6.AttachmentSupport = (doc.getObject("XZ_Plane"), [""])
sketch6.MapMode = "FlatFace"
sketch6.AttachmentOffset = App.Placement(V(0, 0, -3), App.Rotation())
sketch6.addGeometry([
    Part.LineSegment(V(-57.555, -64.055, 0), V(-57.555, 52.555, 0)),  # 0
    Part.LineSegment(V(-57.555, 52.555, 0), V(57.555, 52.555, 0)),  # 1
    Part.LineSegment(V(57.555, 52.555, 0), V(57.555, -64.055, 0)),  # 2
    Part.LineSegment(V(57.555, -64.055, 0), V(-57.555, -64.055, 0)),  # 3
    Part.LineSegment(V(-31, -28.922616, 0), V(-31, -52.188575, 0)),  # 4
    Part.LineSegment(V(-31, -52.188575, 0), V(31, -52.188575, 0)),  # 5
    Part.LineSegment(V(31, -52.188575, 0), V(31, -29, 0)),  # 6
    Part.LineSegment(V(31, -29, 0), V(42.852209, -29, 0)),  # 7
    Part.LineSegment(V(42.852209, -29, 0), V(42.852209, 28.922616, 0)),  # 8
    Part.LineSegment(V(42.852209, 28.922616, 0), V(31, 28.922616, 0)),  # 9
    Part.LineSegment(V(31, 28.922616, 0), V(31, 39, 0)),  # 10
    Part.LineSegment(V(31, 39, 0), V(-31, 39, 0)),  # 11
    Part.LineSegment(V(-31, 39, 0), V(-31, 29, 0)),  # 12
    Part.LineSegment(V(-31, 29, 0), V(-44.52717, 29, 0)),  # 13
    Part.LineSegment(V(-44.52717, 29, 0), V(-44.52717, -28.922616, 0)),  # 14
    Part.LineSegment(V(-44.52717, -28.922616, 0), V(-31, -28.922616, 0)),  # 15
], False)
sketch6.addConstraint([
    Sketcher.Constraint("Coincident", 0, 2, 1, 1),
    Sketcher.Constraint("Coincident", 1, 2, 2, 1),
    Sketcher.Constraint("Coincident", 2, 2, 3, 1),
    Sketcher.Constraint("Coincident", 3, 2, 0, 1),
    Sketcher.Constraint("Coincident", 4, 2, 5, 1),
    Sketcher.Constraint("Coincident", 5, 2, 6, 1),
    Sketcher.Constraint("Coincident", 6, 2, 7, 1),
    Sketcher.Constraint("Coincident", 7, 2, 8, 1),
    Sketcher.Constraint("Coincident", 8, 2, 9, 1),
    Sketcher.Constraint("Coincident", 9, 2, 10, 1),
    Sketcher.Constraint("Coincident", 10, 2, 11, 1),
    Sketcher.Constraint("Coincident", 11, 2, 12, 1),
    Sketcher.Constraint("Coincident", 12, 2, 13, 1),
    Sketcher.Constraint("Coincident", 13, 2, 14, 1),
    Sketcher.Constraint("Coincident", 14, 2, 15, 1),
    Sketcher.Constraint("Coincident", 15, 2, 4, 1),
    Sketcher.Constraint("Vertical", 0),
    Sketcher.Constraint("Horizontal", 1),
    Sketcher.Constraint("Vertical", 2),
    Sketcher.Constraint("Horizontal", 3),
    Sketcher.Constraint("Vertical", 4),
    Sketcher.Constraint("Horizontal", 5),
    Sketcher.Constraint("Vertical", 6),
    Sketcher.Constraint("Horizontal", 7),
    Sketcher.Constraint("Vertical", 8),
    Sketcher.Constraint("Horizontal", 9),
    Sketcher.Constraint("Vertical", 10),
    Sketcher.Constraint("Horizontal", 11),
    Sketcher.Constraint("Vertical", 12),
    Sketcher.Constraint("Horizontal", 13),
    Sketcher.Constraint("Vertical", 14),
    Sketcher.Constraint("Horizontal", 15),
    Sketcher.Constraint("Symmetric", 6, 2, 12, 2, -1, 1),
    Sketcher.Constraint("Symmetric", 9, 2, 15, 2, -1, 1),
    Sketcher.Constraint("Vertical", 6, 2, 9, 2),
    Sketcher.Constraint("DistanceX", 5, 1, 5, 2, 62.0),
    Sketcher.Constraint("DistanceY", 12, 2, 12, 1, 10.0),
    Sketcher.Constraint("DistanceY", 6, 2, -1, 1, 29.0),
    Sketcher.Constraint("DistanceX", 1, 1, 1, 2, 115.11),
    Sketcher.Constraint("DistanceY", 0, 1, 0, 2, 116.61),
    Sketcher.Constraint("DistanceX", 0, 2, -1, 1, 57.555),
    Sketcher.Constraint("DistanceY", -1, 1, 0, 2, 52.555),
    Sketcher.Constraint("DistanceX", 7, 1, 7, 2, 11.852209),
    Sketcher.Constraint("DistanceX", 13, 2, 13, 1, 13.52717),
    Sketcher.Constraint("DistanceY", 4, 2, 4, 1, 23.265959),
    Sketcher.Constraint("DistanceY", 6, 1, 6, 2, 23.188575),
])
pocket3 = body.newObject("PartDesign::Pocket", "Pocket002")
pocket3.Profile = sketch6
pocket3.Length = 10
pocket3.Reversed = True
doc.recompute()

fillet3 = body.newObject("PartDesign::Fillet", "Fillet002")
fillet3.Base = (pocket3, edges_at(pocket3, [(-31, 1.5, 39), (31, 1.5, 39)]))
fillet3.Radius = 5

doc.recompute()
